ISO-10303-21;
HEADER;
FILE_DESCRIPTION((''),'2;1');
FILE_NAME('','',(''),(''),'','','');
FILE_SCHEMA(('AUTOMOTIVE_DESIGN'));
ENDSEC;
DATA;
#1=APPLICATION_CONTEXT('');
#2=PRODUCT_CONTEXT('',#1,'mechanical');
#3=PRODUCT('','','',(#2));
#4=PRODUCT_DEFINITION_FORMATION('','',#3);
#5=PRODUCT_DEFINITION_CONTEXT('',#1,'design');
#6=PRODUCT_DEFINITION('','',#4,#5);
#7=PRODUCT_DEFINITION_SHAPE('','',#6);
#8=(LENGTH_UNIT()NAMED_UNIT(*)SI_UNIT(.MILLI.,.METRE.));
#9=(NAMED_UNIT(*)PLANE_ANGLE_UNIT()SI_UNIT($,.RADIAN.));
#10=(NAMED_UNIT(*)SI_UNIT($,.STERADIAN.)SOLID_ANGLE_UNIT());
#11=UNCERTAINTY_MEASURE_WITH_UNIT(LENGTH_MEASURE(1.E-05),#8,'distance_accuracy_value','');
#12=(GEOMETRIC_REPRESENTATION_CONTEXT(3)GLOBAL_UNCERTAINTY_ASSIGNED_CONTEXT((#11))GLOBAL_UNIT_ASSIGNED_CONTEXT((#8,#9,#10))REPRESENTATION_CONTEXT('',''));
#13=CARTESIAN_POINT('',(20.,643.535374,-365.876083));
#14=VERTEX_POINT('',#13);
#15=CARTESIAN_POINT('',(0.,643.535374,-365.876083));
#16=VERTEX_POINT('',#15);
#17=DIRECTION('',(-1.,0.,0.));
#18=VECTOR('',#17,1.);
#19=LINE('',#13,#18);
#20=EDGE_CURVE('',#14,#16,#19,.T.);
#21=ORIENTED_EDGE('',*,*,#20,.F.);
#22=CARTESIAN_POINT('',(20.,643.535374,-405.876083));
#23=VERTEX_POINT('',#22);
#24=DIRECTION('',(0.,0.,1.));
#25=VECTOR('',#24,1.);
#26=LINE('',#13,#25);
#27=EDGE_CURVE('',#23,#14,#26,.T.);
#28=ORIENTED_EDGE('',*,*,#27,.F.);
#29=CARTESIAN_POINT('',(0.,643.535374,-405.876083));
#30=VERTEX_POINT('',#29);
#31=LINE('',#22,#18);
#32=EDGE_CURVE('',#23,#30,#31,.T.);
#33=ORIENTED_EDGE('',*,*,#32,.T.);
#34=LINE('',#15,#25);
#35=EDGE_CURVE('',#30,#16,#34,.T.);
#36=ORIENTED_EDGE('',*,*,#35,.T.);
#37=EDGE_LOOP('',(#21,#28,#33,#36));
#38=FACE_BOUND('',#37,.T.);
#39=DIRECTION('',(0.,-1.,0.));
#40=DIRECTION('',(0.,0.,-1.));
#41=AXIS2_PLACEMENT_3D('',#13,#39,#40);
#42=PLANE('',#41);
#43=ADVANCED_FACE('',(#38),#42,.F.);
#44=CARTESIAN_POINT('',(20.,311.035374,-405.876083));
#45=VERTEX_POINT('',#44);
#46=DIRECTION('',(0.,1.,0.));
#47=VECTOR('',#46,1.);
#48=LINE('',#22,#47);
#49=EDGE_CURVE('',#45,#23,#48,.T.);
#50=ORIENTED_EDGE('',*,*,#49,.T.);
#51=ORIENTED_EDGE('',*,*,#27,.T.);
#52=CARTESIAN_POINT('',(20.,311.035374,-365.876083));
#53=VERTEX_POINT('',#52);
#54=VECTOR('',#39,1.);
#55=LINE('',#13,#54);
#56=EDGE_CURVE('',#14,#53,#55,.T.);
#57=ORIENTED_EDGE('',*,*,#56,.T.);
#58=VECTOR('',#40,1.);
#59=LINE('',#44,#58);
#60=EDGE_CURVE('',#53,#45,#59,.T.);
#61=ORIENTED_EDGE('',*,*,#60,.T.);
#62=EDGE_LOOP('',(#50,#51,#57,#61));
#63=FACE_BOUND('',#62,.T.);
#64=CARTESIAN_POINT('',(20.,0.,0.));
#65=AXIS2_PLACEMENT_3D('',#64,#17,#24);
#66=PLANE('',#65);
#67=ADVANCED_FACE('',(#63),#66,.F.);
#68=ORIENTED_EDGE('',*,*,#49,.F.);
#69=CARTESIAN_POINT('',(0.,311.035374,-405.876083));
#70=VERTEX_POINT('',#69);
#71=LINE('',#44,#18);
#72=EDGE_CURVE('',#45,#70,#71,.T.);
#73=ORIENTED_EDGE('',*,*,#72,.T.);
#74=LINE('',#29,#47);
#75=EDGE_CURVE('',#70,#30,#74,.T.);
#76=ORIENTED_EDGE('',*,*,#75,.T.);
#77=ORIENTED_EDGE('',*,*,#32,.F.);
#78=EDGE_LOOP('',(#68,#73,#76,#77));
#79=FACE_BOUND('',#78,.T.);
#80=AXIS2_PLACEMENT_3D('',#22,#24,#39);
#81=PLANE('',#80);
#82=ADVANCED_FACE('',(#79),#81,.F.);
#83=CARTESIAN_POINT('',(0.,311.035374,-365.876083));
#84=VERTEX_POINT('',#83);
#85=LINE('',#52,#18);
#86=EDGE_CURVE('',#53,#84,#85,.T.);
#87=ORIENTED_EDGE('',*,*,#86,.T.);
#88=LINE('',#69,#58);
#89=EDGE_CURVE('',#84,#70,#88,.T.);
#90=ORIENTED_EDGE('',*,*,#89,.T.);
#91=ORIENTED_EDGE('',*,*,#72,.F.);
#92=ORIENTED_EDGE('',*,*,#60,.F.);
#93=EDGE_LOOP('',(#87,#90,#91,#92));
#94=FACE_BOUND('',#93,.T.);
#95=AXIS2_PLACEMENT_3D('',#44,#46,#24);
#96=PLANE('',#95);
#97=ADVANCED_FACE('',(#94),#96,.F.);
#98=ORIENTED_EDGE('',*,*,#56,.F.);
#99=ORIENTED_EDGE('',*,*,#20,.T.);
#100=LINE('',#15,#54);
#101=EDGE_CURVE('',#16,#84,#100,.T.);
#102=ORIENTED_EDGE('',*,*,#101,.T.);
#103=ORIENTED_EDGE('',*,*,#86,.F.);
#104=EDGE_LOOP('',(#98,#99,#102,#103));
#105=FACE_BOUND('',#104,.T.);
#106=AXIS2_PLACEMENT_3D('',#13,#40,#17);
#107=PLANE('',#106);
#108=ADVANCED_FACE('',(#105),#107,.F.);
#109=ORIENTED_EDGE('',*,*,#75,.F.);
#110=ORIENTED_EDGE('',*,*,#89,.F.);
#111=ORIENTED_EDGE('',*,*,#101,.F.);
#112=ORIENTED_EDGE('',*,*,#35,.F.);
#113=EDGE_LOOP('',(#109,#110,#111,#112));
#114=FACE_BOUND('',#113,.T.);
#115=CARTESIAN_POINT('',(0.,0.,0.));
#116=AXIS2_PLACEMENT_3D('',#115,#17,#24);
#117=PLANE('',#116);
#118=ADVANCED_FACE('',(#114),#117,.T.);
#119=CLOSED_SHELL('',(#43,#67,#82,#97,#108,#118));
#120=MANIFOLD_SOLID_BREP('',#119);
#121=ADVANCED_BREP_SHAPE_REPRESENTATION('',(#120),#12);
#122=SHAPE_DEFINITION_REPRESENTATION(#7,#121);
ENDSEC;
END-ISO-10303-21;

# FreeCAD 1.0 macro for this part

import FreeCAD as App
import Part
import Sketcher

V = App.Vector
Q = App.Units.Quantity

doc = App.newDocument("Part")
params = doc.addObject("Spreadsheet::Sheet", "Params")
for row, (alias, value) in enumerate([
    ("sketch1_height", "40 mm"),
    ("sketch1_width", "332.5 mm"),
    ("pad1_length", "20 mm"),
], start=1):
    params.set(f"A{row}", alias)
    params.set(f"B{row}", "=" + value)
    params.setAlias(f"B{row}", alias)

body = doc.addObject("PartDesign::Body", "Body")

sketch1 = body.newObject("Sketcher::SketchObject", "Sketch")
sketch1.AttachmentSupport = (doc.getObject("YZ_Plane"), [""])
sketch1.MapMode = "FlatFace"
sketch1.addGeometry(Part.LineSegment(V(643.535374, -365.876083, 0), V(311.035374, -365.876083, 0)), False)
sketch1.addGeometry(Part.LineSegment(V(311.035374, -365.876083, 0), V(311.035374, -405.876083, 0)), False)
sketch1.addGeometry(Part.LineSegment(V(311.035374, -405.876083, 0), V(643.535374, -405.876083, 0)), False)
sketch1.addGeometry(Part.LineSegment(V(643.535374, -405.876083, 0), V(643.535374, -365.876083, 0)), False)
sketch1.addConstraint(Sketcher.Constraint("Coincident", 0, 2, 1, 1))
sketch1.addConstraint(Sketcher.Constraint("Coincident", 1, 2, 2, 1))
sketch1.addConstraint(Sketcher.Constraint("Coincident", 2, 2, 3, 1))
sketch1.addConstraint(Sketcher.Constraint("Coincident", 3, 2, 0, 1))
sketch1.addConstraint(Sketcher.Constraint("Horizontal", 0))
sketch1.addConstraint(Sketcher.Constraint("Vertical", 1))
sketch1.addConstraint(Sketcher.Constraint("Horizontal", 2))
sketch1.addConstraint(Sketcher.Constraint("Vertical", 3))
sketch1.addConstraint(Sketcher.Constraint("DistanceY", 1, 2, 1, 1, Q("40 mm")))
sketch1.addConstraint(Sketcher.Constraint("DistanceX", 0, 2, 0, 1, Q("332.5 mm")))
sketch1.addConstraint(Sketcher.Constraint("DistanceX", -1, 1, 0, 2, Q("311.035374 mm")))
sketch1.addConstraint(Sketcher.Constraint("DistanceY", 0, 2, -1, 1, Q("365.876083 mm")))
sketch1.setExpression("Constraints[8]", "Params.sketch1_height")
sketch1.setExpression("Constraints[9]", "Params.sketch1_width")
pad1 = body.newObject("PartDesign::Pad", "Pad")
pad1.Profile = sketch1
pad1.setExpression("Length", "Params.pad1_length")

doc.recompute()
